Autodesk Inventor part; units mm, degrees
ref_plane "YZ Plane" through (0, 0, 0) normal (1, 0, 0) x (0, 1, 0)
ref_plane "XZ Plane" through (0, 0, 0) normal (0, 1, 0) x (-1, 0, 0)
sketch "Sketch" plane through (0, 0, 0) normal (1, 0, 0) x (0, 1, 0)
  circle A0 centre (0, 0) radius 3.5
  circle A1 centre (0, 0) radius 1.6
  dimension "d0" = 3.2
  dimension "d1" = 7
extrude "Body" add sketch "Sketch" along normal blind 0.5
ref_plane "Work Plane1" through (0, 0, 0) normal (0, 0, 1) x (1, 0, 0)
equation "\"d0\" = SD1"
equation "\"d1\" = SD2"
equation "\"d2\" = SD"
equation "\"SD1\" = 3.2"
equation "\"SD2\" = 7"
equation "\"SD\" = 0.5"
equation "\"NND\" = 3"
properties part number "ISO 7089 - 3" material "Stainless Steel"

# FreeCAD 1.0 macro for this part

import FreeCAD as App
import Part
import Sketcher

doc = App.newDocument("Part")
body = doc.addObject("PartDesign::Body", "Body")

sketch1 = body.newObject("Sketcher::SketchObject", "Sketch")
sketch1.AttachmentSupport = (doc.getObject("YZ_Plane"), [""])
sketch1.MapMode = "FlatFace"
sketch1.addGeometry(Part.Circle(App.Vector(0, 0, 0), App.Vector(0, 0, 1), 3.5), False)
sketch1.addGeometry(Part.Circle(App.Vector(0, 0, 0), App.Vector(0, 0, 1), 1.6), False)
sketch1.addConstraint(Sketcher.Constraint("Coincident", 0, 3, -1, 1))
sketch1.addConstraint(Sketcher.Constraint("Coincident", 1, 3, -1, 1))
sketch1.addConstraint(Sketcher.Constraint("Diameter", 0, 7.0))
sketch1.addConstraint(Sketcher.Constraint("Diameter", 1, 3.2))
pad1 = body.newObject("PartDesign::Pad", "Pad")
pad1.Profile = sketch1
pad1.Length = 0.5

doc.recompute()
